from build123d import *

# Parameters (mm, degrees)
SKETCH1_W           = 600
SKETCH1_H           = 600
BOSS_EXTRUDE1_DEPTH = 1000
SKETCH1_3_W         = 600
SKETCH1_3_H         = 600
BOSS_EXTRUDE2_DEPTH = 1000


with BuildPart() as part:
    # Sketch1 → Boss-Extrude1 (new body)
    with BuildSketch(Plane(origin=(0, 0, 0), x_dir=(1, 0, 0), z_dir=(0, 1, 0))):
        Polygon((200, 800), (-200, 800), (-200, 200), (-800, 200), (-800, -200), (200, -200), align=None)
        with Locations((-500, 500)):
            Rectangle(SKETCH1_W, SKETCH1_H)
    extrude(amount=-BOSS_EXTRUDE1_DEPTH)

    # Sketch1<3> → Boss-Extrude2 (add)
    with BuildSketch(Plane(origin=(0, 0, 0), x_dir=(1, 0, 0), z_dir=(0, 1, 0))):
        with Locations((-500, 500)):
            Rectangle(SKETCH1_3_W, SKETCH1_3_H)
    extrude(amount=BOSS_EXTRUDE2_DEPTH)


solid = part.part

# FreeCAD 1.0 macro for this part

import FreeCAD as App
import Part
import Sketcher

V = App.Vector


def add_polygon(sketch, points):
    """Adds a closed chain of lines whose ends are joined by coincident constraints."""
    first, n = sketch.GeometryCount, len(points)
    for a, b in zip(points, points[1:] + points[:1]):
        sketch.addGeometry(Part.LineSegment(App.Vector(*a, 0), App.Vector(*b, 0)), False)
    for i in range(n):
        sketch.addConstraint(Sketcher.Constraint("Coincident", first + i, 2, first + (i + 1) % n, 1))

doc = App.newDocument("Part")
params = doc.addObject("Spreadsheet::Sheet", "Params")
for row, (alias, value) in enumerate([
    ("sketch1_width", "1000 mm"),
    ("pad1_length", "1000 mm"),
    ("sketch2_width", "600 mm"),
    ("pad2_length", "1000 mm"),
], start=1):
    params.set(f"A{row}", alias)
    params.set(f"B{row}", "=" + value)
    params.setAlias(f"B{row}", alias)

body = doc.addObject("PartDesign::Body", "Body")

sketch1 = doc.addObject("Sketcher::SketchObject", "Sketch")
body.addObject(sketch1)
sketch1.AttachmentSupport = (doc.XZ_Plane, [""])
sketch1.MapMode = "FlatFace"
add_polygon(sketch1, [(200, -800), (-800, -800), (-800, 200), (200, 200)])
sketch1.addConstraint([
    Sketcher.Constraint("Horizontal", 0),
    Sketcher.Constraint("Vertical", 1),
    Sketcher.Constraint("Horizontal", 2),
    Sketcher.Constraint("Vertical", 3),
    Sketcher.Constraint("Equal", 2, 1),
    Sketcher.Constraint("DistanceX", 0, 2, 0, 1, 1000.0),
    Sketcher.Constraint("DistanceX", 0, 2, -1, 1, 800.0),
    Sketcher.Constraint("DistanceY", 0, 2, -1, 1, 800.0),
])
sketch1.setExpression("Constraints[9]", "Params.sketch1_width")
pad1 = doc.addObject("PartDesign::Pad", "Pad")
body.addObject(pad1)
pad1.Profile = sketch1
pad1.setExpression("Length", "Params.pad1_length")

sketch2 = doc.addObject("Sketcher::SketchObject", "Sketch001")
body.addObject(sketch2)
sketch2.AttachmentSupport = (doc.XZ_Plane, [""])
sketch2.MapMode = "FlatFace"
add_polygon(sketch2, [(-800, -800), (-800, -200), (-200, -200), (-200, -800)])
sketch2.addConstraint([
    Sketcher.Constraint("Vertical", 0),
    Sketcher.Constraint("Horizontal", 1),
    Sketcher.Constraint("Vertical", 2),
    Sketcher.Constraint("Horizontal", 3),
    Sketcher.Constraint("Equal", 3, 0),
    Sketcher.Constraint("DistanceX", 1, 1, 1, 2, 600.0),
    Sketcher.Constraint("DistanceX", 0, 2, -1, 1, 800.0),
    Sketcher.Constraint("DistanceY", 0, 2, -1, 1, 200.0),
])
sketch2.setExpression("Constraints[9]", "Params.sketch2_width")
pad2 = doc.addObject("PartDesign::Pad", "Pad001")
body.addObject(pad2)
pad2.Profile = sketch2
pad2.setExpression("Length", "Params.pad2_length")
pad2.Reversed = True

doc.recompute()
